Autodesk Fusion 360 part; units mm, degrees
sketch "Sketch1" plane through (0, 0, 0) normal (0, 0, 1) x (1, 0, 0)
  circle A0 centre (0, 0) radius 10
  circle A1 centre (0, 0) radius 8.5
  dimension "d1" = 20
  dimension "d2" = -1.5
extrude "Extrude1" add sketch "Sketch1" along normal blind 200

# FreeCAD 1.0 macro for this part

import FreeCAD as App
import Part
import Sketcher

doc = App.newDocument("Part")
params = doc.addObject("Spreadsheet::Sheet", "Params")
for row, (alias, value) in enumerate([
    ("sketch1_diameter", "20 mm"),
    ("sketch1_diameter2", "17 mm"),
    ("pad1_length", "200 mm"),
], start=1):
    params.set(f"A{row}", alias)
    params.set(f"B{row}", "=" + value)
    params.setAlias(f"B{row}", alias)

body = doc.addObject("PartDesign::Body", "Body")

sketch1 = body.newObject("Sketcher::SketchObject", "Sketch")
sketch1.AttachmentSupport = (doc.getObject("XY_Plane"), [""])
sketch1.MapMode = "FlatFace"
sketch1.addGeometry([
    Part.Circle(App.Vector(0, 0, 0), App.Vector(0, 0, 1), 10),
    Part.Circle(App.Vector(0, 0, 0), App.Vector(0, 0, 1), 8),
], False)
sketch1.addConstraint([
    Sketcher.Constraint("Coincident", 0, 3, -1, 1),
    Sketcher.Constraint("Coincident", 1, 3, -1, 1),
    Sketcher.Constraint("Diameter", 0, 20.0),
    Sketcher.Constraint("Diameter", 1, 17.0),
])
sketch1.setExpression("Constraints[2]", "Params.sketch1_diameter")
sketch1.setExpression("Constraints[3]", "Params.sketch1_diameter2")
pad1 = body.newObject("PartDesign::Pad", "Pad")
pad1.Profile = sketch1
pad1.setExpression("Length", "Params.pad1_length")

doc.recompute()
